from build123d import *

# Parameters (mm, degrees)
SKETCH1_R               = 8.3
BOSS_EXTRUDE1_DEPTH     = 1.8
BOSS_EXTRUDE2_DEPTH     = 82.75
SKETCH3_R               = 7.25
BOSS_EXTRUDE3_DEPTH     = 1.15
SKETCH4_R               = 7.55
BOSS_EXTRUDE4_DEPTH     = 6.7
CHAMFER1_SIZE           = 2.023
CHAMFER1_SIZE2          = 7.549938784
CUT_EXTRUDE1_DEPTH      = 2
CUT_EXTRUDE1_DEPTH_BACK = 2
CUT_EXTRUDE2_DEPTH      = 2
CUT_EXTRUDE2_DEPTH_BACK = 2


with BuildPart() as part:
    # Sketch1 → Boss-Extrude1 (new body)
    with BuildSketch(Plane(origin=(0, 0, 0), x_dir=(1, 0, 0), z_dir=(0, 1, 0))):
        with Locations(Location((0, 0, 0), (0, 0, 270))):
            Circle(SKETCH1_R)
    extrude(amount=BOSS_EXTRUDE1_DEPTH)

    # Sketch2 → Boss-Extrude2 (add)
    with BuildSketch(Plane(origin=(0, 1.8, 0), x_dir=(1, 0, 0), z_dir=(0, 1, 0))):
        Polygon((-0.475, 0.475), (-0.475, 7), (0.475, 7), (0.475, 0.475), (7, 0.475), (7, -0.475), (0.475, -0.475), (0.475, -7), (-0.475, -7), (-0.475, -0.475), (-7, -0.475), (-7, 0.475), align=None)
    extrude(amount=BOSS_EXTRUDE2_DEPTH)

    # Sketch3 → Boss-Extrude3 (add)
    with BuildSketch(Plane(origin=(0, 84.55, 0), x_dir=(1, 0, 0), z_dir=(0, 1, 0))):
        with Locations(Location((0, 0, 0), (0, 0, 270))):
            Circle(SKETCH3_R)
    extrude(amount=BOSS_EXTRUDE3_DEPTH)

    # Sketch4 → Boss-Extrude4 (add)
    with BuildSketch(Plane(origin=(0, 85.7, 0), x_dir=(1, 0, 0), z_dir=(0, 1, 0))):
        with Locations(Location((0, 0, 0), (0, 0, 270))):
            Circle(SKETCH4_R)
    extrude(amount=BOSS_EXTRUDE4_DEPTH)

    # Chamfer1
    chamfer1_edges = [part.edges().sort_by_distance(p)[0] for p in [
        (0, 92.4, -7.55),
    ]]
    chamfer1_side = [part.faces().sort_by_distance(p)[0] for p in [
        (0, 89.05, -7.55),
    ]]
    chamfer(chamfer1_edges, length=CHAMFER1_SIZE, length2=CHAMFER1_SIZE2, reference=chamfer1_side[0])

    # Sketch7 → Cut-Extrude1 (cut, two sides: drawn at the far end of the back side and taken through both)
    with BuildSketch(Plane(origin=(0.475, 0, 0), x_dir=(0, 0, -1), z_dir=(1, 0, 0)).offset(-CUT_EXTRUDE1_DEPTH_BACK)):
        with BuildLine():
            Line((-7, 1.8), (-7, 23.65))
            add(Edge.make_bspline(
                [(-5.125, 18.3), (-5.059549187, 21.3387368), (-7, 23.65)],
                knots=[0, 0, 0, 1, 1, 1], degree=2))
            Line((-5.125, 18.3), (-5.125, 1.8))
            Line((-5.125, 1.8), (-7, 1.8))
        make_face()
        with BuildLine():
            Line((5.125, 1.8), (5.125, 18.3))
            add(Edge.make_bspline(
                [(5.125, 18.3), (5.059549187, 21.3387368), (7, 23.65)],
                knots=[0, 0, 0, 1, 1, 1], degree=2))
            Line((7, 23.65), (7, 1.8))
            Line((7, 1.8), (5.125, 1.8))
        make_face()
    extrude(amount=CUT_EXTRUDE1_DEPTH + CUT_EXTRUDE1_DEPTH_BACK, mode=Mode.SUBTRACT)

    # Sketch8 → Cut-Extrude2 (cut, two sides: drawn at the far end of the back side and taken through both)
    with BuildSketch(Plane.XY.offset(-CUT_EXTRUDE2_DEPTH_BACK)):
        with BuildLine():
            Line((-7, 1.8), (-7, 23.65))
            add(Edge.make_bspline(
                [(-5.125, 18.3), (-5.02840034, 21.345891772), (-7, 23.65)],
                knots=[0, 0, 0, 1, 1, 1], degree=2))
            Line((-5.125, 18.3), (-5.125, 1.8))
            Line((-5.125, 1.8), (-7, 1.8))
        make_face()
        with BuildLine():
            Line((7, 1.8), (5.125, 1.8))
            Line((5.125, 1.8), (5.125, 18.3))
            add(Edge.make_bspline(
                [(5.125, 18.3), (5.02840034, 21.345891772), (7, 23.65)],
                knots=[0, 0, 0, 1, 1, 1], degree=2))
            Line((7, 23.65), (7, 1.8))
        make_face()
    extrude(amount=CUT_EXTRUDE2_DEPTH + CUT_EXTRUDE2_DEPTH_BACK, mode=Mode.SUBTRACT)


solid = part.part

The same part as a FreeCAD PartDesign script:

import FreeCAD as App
import Part
import Sketcher
Q = App.Units.Quantity


def edges_at(feature, points):
    """Names of the edges that pass closest to the given points."""
    edges = feature.Shape.Edges
    near = lambda p: min(range(len(edges)), key=lambda i: edges[i].distToShape(Part.Vertex(*p))[0])
    return sorted({f"Edge{near(p) + 1}" for p in points})

doc = App.newDocument("Part")
body = doc.addObject("PartDesign::Body", "Body")

# Sketch on XZ plane
sketch1 = body.newObject("Sketcher::SketchObject", "Sketch")
sketch1.AttachmentSupport = (doc.getObject("XZ_Plane"), [""])
sketch1.MapMode = "FlatFace"
sketch1.addGeometry(Part.Circle(App.Vector(0, 0, 0), App.Vector(0, 0, 1), 8), False)
sketch1.addConstraint(Sketcher.Constraint("Coincident", 0, 3, -1, 1))
sketch1.addConstraint(Sketcher.Constraint("Diameter", 0, Q("16.6 mm")))
pad1 = body.newObject("PartDesign::Pad", "Pad")
pad1.Profile = sketch1
pad1.Length = 1.8
pad1.Reversed = True

# Sketch on XZ plane
sketch2 = body.newObject("Sketcher::SketchObject", "Sketch001")
sketch2.AttachmentSupport = (doc.getObject("XZ_Plane"), [""])
sketch2.MapMode = "FlatFace"
sketch2.AttachmentOffset = App.Placement(App.Vector(0, 0, -1.8), App.Rotation())
sketch2.addGeometry(Part.LineSegment(App.Vector(-0.5, -7, 0), App.Vector(-0.5, -0.5, 0)), False)
sketch2.addGeometry(Part.LineSegment(App.Vector(-0.5, -0.5, 0), App.Vector(-7, -0.5, 0)), False)
sketch2.addGeometry(Part.LineSegment(App.Vector(-7, -0.5, 0), App.Vector(-7, 0.5, 0)), False)
sketch2.addGeometry(Part.LineSegment(App.Vector(-7, 0.5, 0), App.Vector(-0.5, 0.5, 0)), False)
sketch2.addGeometry(Part.LineSegment(App.Vector(-0.5, 0.5, 0), App.Vector(-0.5, 7, 0)), False)
sketch2.addGeometry(Part.LineSegment(App.Vector(-0.5, 7, 0), App.Vector(0.5, 7, 0)), False)
sketch2.addGeometry(Part.LineSegment(App.Vector(0.5, 7, 0), App.Vector(0.5, 0.5, 0)), False)
sketch2.addGeometry(Part.LineSegment(App.Vector(0.5, 0.5, 0), App.Vector(7, 0.5, 0)), False)
sketch2.addGeometry(Part.LineSegment(App.Vector(7, 0.5, 0), App.Vector(7, -0.5, 0)), False)
sketch2.addGeometry(Part.LineSegment(App.Vector(7, -0.5, 0), App.Vector(0.5, -0.5, 0)), False)
sketch2.addGeometry(Part.LineSegment(App.Vector(0.5, -0.5, 0), App.Vector(0.5, -7, 0)), False)
sketch2.addGeometry(Part.LineSegment(App.Vector(0.5, -7, 0), App.Vector(-0.5, -7, 0)), False)
sketch2.addConstraint(Sketcher.Constraint("Coincident", 0, 2, 1, 1))
sketch2.addConstraint(Sketcher.Constraint("Coincident", 1, 2, 2, 1))
sketch2.addConstraint(Sketcher.Constraint("Coincident", 2, 2, 3, 1))
sketch2.addConstraint(Sketcher.Constraint("Coincident", 3, 2, 4, 1))
sketch2.addConstraint(Sketcher.Constraint("Coincident", 4, 2, 5, 1))
sketch2.addConstraint(Sketcher.Constraint("Coincident", 5, 2, 6, 1))
sketch2.addConstraint(Sketcher.Constraint("Coincident", 6, 2, 7, 1))
sketch2.addConstraint(Sketcher.Constraint("Coincident", 7, 2, 8, 1))
sketch2.addConstraint(Sketcher.Constraint("Coincident", 8, 2, 9, 1))
sketch2.addConstraint(Sketcher.Constraint("Coincident", 9, 2, 10, 1))
sketch2.addConstraint(Sketcher.Constraint("Coincident", 10, 2, 11, 1))
sketch2.addConstraint(Sketcher.Constraint("Coincident", 11, 2, 0, 1))
sketch2.addConstraint(Sketcher.Constraint("Vertical", 0))
sketch2.addConstraint(Sketcher.Constraint("Horizontal", 1))
sketch2.addConstraint(Sketcher.Constraint("Vertical", 2))
sketch2.addConstraint(Sketcher.Constraint("Horizontal", 3))
sketch2.addConstraint(Sketcher.Constraint("Vertical", 4))
sketch2.addConstraint(Sketcher.Constraint("Horizontal", 5))
sketch2.addConstraint(Sketcher.Constraint("Vertical", 6))
sketch2.addConstraint(Sketcher.Constraint("Horizontal", 7))
sketch2.addConstraint(Sketcher.Constraint("Vertical", 8))
sketch2.addConstraint(Sketcher.Constraint("Horizontal", 9))
sketch2.addConstraint(Sketcher.Constraint("Vertical", 10))
sketch2.addConstraint(Sketcher.Constraint("Horizontal", 11))
sketch2.addConstraint(Sketcher.Constraint("Symmetric", 0, 2, 6, 2, -1, 1))
sketch2.addConstraint(Sketcher.Constraint("Symmetric", 2, 2, 8, 2, -1, 1))
sketch2.addConstraint(Sketcher.Constraint("Symmetric", 4, 2, 10, 2, -1, 1))
sketch2.addConstraint(Sketcher.Constraint("Symmetric", 3, 2, 6, 2, -2))
sketch2.addConstraint(Sketcher.Constraint("Equal", 9, 0))
sketch2.addConstraint(Sketcher.Constraint("Equal", 11, 2))
sketch2.addConstraint(Sketcher.Constraint("DistanceX", 1, 2, -1, 1, Q("7 mm")))
sketch2.addConstraint(Sketcher.Constraint("DistanceX", 5, 1, 5, 2, Q("0.95 mm")))
pad2 = body.newObject("PartDesign::Pad", "Pad001")
pad2.Profile = sketch2
pad2.Length = 82.75
pad2.Reversed = True

# Sketch on XZ plane
sketch3 = body.newObject("Sketcher::SketchObject", "Sketch002")
sketch3.AttachmentSupport = (doc.getObject("XZ_Plane"), [""])
sketch3.MapMode = "FlatFace"
sketch3.AttachmentOffset = App.Placement(App.Vector(0, 0, -84.55), App.Rotation())
sketch3.addGeometry(Part.Circle(App.Vector(0, 0, 0), App.Vector(0, 0, 1), 7), False)
sketch3.addConstraint(Sketcher.Constraint("Coincident", 0, 3, -1, 1))
sketch3.addConstraint(Sketcher.Constraint("Diameter", 0, Q("14.5 mm")))
pad3 = body.newObject("PartDesign::Pad", "Pad002")
pad3.Profile = sketch3
pad3.Length = 1.15
pad3.Reversed = True

# Sketch on XZ plane
sketch4 = body.newObject("Sketcher::SketchObject", "Sketch003")
sketch4.AttachmentSupport = (doc.getObject("XZ_Plane"), [""])
sketch4.MapMode = "FlatFace"
sketch4.AttachmentOffset = App.Placement(App.Vector(0, 0, -85.7), App.Rotation())
sketch4.addGeometry(Part.Circle(App.Vector(0, 0, 0), App.Vector(0, 0, 1), 8), False)
sketch4.addConstraint(Sketcher.Constraint("Coincident", 0, 3, -1, 1))
sketch4.addConstraint(Sketcher.Constraint("Diameter", 0, Q("15.1 mm")))
pad4 = body.newObject("PartDesign::Pad", "Pad003")
pad4.Profile = sketch4
pad4.Length = 6.7
pad4.Reversed = True
doc.recompute()

chamfer = body.newObject("PartDesign::Chamfer", "Chamfer")
chamfer.Base = (pad4, edges_at(pad4, [(0, 92.4, -7.55)]))
chamfer.ChamferType = "Two distances"
chamfer.Size = 2.023
chamfer.Size2 = 7.549939

# Sketch on YZ plane
sketch5 = body.newObject("Sketcher::SketchObject", "Sketch004")
sketch5.AttachmentSupport = (doc.getObject("YZ_Plane"), [""])
sketch5.MapMode = "FlatFace"
sketch5.AttachmentOffset = App.Placement(App.Vector(0, 0, 0.475), App.Rotation())
sketch5.addGeometry(Part.LineSegment(App.Vector(23.65, 7, 0), App.Vector(1.8, 7, 0)), False)
sketch5.addGeometry(Part.LineSegment(App.Vector(1.8, 7, 0), App.Vector(1.8, 5.125, 0)), False)
sketch5.addGeometry(Part.LineSegment(App.Vector(1.8, 5.125, 0), App.Vector(18.3, 5.125, 0)), False)
sketch5.addGeometry(Part.BSplineCurve([App.Vector(18.3, 5.125, 0), App.Vector(21.338737, 5.059549, 0), App.Vector(23.65, 7, 0)], [3, 3], [0, 1], False, 2, [1, 1, 1], False), False)
sketch5.addGeometry(Part.LineSegment(App.Vector(18.3, -5.125, 0), App.Vector(1.8, -5.125, 0)), False)
sketch5.addGeometry(Part.LineSegment(App.Vector(1.8, -5.125, 0), App.Vector(1.8, -7, 0)), False)
sketch5.addGeometry(Part.LineSegment(App.Vector(1.8, -7, 0), App.Vector(23.65, -7, 0)), False)
sketch5.addGeometry(Part.BSplineCurve([App.Vector(18.3, -5.125, 0), App.Vector(21.338737, -5.059549, 0), App.Vector(23.65, -7, 0)], [3, 3], [0, 1], False, 2, [1, 1, 1], False), False)
sketch5.addConstraint(Sketcher.Constraint("Block", 3))
sketch5.addConstraint(Sketcher.Constraint("Block", 7))
sketch5.addConstraint(Sketcher.Constraint("Coincident", 0, 2, 1, 1))
sketch5.addConstraint(Sketcher.Constraint("Coincident", 1, 2, 2, 1))
sketch5.addConstraint(Sketcher.Constraint("Coincident", 2, 2, 3, 1))
sketch5.addConstraint(Sketcher.Constraint("Coincident", 3, 2, 0, 1))
sketch5.addConstraint(Sketcher.Constraint("Coincident", 4, 2, 5, 1))
sketch5.addConstraint(Sketcher.Constraint("Coincident", 5, 2, 6, 1))
sketch5.addConstraint(Sketcher.Constraint("Coincident", 6, 2, 7, 2))
sketch5.addConstraint(Sketcher.Constraint("Coincident", 7, 1, 4, 1))
sketch5.addConstraint(Sketcher.Constraint("Horizontal", 0))
sketch5.addConstraint(Sketcher.Constraint("Vertical", 1))
sketch5.addConstraint(Sketcher.Constraint("Horizontal", 2))
sketch5.addConstraint(Sketcher.Constraint("Horizontal", 4))
sketch5.addConstraint(Sketcher.Constraint("Vertical", 5))
sketch5.addConstraint(Sketcher.Constraint("Horizontal", 6))
sketch5.addConstraint(Sketcher.Constraint("Vertical", 1, 2, 4, 2))
sketch5.addConstraint(Sketcher.Constraint("DistanceX", 2, 1, 2, 2, Q("16.5 mm")))
pocket1 = body.newObject("PartDesign::Pocket", "Pocket")
pocket1.Profile = sketch5
pocket1.Type = "ThroughAll"
pocket1.Midplane = True

# Sketch on XY plane
sketch6 = body.newObject("Sketcher::SketchObject", "Sketch005")
sketch6.AttachmentSupport = (doc.getObject("XY_Plane"), [""])
sketch6.MapMode = "FlatFace"
sketch6.addGeometry(Part.LineSegment(App.Vector(-7, 23.65, 0), App.Vector(-7, 1.8, 0)), False)
sketch6.addGeometry(Part.LineSegment(App.Vector(-7, 1.8, 0), App.Vector(-5.125, 1.8, 0)), False)
sketch6.addGeometry(Part.LineSegment(App.Vector(-5.125, 1.8, 0), App.Vector(-5.125, 18.3, 0)), False)
sketch6.addGeometry(Part.BSplineCurve([App.Vector(-5.125, 18.3, 0), App.Vector(-5.0284, 21.345892, 0), App.Vector(-7, 23.65, 0)], [3, 3], [0, 1], False, 2, [1, 1, 1], False), False)
sketch6.addGeometry(Part.LineSegment(App.Vector(5.125, 1.8, 0), App.Vector(7, 1.8, 0)), False)
sketch6.addGeometry(Part.LineSegment(App.Vector(7, 1.8, 0), App.Vector(7, 23.65, 0)), False)
sketch6.addGeometry(Part.BSplineCurve([App.Vector(5.125, 18.3, 0), App.Vector(5.0284, 21.345892, 0), App.Vector(7, 23.65, 0)], [3, 3], [0, 1], False, 2, [1, 1, 1], False), False)
sketch6.addGeometry(Part.LineSegment(App.Vector(5.125, 18.3, 0), App.Vector(5.125, 1.8, 0)), False)
sketch6.addConstraint(Sketcher.Constraint("Block", 3))
sketch6.addConstraint(Sketcher.Constraint("Block", 6))
sketch6.addConstraint(Sketcher.Constraint("Coincident", 0, 2, 1, 1))
sketch6.addConstraint(Sketcher.Constraint("Coincident", 1, 2, 2, 1))
sketch6.addConstraint(Sketcher.Constraint("Coincident", 2, 2, 3, 1))
sketch6.addConstraint(Sketcher.Constraint("Coincident", 3, 2, 0, 1))
sketch6.addConstraint(Sketcher.Constraint("Coincident", 4, 2, 5, 1))
sketch6.addConstraint(Sketcher.Constraint("Coincident", 5, 2, 6, 2))
sketch6.addConstraint(Sketcher.Constraint("Coincident", 6, 1, 7, 1))
sketch6.addConstraint(Sketcher.Constraint("Coincident", 7, 2, 4, 1))
sketch6.addConstraint(Sketcher.Constraint("Vertical", 0))
sketch6.addConstraint(Sketcher.Constraint("Horizontal", 1))
sketch6.addConstraint(Sketcher.Constraint("Vertical", 2))
sketch6.addConstraint(Sketcher.Constraint("Horizontal", 4))
sketch6.addConstraint(Sketcher.Constraint("Vertical", 5))
sketch6.addConstraint(Sketcher.Constraint("Vertical", 7))
sketch6.addConstraint(Sketcher.Constraint("Horizontal", 1, 2, 4, 2))
sketch6.addConstraint(Sketcher.Constraint("DistanceY", 2, 1, 2, 2, Q("16.5 mm")))
pocket2 = body.newObject("PartDesign::Pocket", "Pocket001")
pocket2.Profile = sketch6
pocket2.Type = "ThroughAll"
pocket2.Midplane = True

doc.recompute()
